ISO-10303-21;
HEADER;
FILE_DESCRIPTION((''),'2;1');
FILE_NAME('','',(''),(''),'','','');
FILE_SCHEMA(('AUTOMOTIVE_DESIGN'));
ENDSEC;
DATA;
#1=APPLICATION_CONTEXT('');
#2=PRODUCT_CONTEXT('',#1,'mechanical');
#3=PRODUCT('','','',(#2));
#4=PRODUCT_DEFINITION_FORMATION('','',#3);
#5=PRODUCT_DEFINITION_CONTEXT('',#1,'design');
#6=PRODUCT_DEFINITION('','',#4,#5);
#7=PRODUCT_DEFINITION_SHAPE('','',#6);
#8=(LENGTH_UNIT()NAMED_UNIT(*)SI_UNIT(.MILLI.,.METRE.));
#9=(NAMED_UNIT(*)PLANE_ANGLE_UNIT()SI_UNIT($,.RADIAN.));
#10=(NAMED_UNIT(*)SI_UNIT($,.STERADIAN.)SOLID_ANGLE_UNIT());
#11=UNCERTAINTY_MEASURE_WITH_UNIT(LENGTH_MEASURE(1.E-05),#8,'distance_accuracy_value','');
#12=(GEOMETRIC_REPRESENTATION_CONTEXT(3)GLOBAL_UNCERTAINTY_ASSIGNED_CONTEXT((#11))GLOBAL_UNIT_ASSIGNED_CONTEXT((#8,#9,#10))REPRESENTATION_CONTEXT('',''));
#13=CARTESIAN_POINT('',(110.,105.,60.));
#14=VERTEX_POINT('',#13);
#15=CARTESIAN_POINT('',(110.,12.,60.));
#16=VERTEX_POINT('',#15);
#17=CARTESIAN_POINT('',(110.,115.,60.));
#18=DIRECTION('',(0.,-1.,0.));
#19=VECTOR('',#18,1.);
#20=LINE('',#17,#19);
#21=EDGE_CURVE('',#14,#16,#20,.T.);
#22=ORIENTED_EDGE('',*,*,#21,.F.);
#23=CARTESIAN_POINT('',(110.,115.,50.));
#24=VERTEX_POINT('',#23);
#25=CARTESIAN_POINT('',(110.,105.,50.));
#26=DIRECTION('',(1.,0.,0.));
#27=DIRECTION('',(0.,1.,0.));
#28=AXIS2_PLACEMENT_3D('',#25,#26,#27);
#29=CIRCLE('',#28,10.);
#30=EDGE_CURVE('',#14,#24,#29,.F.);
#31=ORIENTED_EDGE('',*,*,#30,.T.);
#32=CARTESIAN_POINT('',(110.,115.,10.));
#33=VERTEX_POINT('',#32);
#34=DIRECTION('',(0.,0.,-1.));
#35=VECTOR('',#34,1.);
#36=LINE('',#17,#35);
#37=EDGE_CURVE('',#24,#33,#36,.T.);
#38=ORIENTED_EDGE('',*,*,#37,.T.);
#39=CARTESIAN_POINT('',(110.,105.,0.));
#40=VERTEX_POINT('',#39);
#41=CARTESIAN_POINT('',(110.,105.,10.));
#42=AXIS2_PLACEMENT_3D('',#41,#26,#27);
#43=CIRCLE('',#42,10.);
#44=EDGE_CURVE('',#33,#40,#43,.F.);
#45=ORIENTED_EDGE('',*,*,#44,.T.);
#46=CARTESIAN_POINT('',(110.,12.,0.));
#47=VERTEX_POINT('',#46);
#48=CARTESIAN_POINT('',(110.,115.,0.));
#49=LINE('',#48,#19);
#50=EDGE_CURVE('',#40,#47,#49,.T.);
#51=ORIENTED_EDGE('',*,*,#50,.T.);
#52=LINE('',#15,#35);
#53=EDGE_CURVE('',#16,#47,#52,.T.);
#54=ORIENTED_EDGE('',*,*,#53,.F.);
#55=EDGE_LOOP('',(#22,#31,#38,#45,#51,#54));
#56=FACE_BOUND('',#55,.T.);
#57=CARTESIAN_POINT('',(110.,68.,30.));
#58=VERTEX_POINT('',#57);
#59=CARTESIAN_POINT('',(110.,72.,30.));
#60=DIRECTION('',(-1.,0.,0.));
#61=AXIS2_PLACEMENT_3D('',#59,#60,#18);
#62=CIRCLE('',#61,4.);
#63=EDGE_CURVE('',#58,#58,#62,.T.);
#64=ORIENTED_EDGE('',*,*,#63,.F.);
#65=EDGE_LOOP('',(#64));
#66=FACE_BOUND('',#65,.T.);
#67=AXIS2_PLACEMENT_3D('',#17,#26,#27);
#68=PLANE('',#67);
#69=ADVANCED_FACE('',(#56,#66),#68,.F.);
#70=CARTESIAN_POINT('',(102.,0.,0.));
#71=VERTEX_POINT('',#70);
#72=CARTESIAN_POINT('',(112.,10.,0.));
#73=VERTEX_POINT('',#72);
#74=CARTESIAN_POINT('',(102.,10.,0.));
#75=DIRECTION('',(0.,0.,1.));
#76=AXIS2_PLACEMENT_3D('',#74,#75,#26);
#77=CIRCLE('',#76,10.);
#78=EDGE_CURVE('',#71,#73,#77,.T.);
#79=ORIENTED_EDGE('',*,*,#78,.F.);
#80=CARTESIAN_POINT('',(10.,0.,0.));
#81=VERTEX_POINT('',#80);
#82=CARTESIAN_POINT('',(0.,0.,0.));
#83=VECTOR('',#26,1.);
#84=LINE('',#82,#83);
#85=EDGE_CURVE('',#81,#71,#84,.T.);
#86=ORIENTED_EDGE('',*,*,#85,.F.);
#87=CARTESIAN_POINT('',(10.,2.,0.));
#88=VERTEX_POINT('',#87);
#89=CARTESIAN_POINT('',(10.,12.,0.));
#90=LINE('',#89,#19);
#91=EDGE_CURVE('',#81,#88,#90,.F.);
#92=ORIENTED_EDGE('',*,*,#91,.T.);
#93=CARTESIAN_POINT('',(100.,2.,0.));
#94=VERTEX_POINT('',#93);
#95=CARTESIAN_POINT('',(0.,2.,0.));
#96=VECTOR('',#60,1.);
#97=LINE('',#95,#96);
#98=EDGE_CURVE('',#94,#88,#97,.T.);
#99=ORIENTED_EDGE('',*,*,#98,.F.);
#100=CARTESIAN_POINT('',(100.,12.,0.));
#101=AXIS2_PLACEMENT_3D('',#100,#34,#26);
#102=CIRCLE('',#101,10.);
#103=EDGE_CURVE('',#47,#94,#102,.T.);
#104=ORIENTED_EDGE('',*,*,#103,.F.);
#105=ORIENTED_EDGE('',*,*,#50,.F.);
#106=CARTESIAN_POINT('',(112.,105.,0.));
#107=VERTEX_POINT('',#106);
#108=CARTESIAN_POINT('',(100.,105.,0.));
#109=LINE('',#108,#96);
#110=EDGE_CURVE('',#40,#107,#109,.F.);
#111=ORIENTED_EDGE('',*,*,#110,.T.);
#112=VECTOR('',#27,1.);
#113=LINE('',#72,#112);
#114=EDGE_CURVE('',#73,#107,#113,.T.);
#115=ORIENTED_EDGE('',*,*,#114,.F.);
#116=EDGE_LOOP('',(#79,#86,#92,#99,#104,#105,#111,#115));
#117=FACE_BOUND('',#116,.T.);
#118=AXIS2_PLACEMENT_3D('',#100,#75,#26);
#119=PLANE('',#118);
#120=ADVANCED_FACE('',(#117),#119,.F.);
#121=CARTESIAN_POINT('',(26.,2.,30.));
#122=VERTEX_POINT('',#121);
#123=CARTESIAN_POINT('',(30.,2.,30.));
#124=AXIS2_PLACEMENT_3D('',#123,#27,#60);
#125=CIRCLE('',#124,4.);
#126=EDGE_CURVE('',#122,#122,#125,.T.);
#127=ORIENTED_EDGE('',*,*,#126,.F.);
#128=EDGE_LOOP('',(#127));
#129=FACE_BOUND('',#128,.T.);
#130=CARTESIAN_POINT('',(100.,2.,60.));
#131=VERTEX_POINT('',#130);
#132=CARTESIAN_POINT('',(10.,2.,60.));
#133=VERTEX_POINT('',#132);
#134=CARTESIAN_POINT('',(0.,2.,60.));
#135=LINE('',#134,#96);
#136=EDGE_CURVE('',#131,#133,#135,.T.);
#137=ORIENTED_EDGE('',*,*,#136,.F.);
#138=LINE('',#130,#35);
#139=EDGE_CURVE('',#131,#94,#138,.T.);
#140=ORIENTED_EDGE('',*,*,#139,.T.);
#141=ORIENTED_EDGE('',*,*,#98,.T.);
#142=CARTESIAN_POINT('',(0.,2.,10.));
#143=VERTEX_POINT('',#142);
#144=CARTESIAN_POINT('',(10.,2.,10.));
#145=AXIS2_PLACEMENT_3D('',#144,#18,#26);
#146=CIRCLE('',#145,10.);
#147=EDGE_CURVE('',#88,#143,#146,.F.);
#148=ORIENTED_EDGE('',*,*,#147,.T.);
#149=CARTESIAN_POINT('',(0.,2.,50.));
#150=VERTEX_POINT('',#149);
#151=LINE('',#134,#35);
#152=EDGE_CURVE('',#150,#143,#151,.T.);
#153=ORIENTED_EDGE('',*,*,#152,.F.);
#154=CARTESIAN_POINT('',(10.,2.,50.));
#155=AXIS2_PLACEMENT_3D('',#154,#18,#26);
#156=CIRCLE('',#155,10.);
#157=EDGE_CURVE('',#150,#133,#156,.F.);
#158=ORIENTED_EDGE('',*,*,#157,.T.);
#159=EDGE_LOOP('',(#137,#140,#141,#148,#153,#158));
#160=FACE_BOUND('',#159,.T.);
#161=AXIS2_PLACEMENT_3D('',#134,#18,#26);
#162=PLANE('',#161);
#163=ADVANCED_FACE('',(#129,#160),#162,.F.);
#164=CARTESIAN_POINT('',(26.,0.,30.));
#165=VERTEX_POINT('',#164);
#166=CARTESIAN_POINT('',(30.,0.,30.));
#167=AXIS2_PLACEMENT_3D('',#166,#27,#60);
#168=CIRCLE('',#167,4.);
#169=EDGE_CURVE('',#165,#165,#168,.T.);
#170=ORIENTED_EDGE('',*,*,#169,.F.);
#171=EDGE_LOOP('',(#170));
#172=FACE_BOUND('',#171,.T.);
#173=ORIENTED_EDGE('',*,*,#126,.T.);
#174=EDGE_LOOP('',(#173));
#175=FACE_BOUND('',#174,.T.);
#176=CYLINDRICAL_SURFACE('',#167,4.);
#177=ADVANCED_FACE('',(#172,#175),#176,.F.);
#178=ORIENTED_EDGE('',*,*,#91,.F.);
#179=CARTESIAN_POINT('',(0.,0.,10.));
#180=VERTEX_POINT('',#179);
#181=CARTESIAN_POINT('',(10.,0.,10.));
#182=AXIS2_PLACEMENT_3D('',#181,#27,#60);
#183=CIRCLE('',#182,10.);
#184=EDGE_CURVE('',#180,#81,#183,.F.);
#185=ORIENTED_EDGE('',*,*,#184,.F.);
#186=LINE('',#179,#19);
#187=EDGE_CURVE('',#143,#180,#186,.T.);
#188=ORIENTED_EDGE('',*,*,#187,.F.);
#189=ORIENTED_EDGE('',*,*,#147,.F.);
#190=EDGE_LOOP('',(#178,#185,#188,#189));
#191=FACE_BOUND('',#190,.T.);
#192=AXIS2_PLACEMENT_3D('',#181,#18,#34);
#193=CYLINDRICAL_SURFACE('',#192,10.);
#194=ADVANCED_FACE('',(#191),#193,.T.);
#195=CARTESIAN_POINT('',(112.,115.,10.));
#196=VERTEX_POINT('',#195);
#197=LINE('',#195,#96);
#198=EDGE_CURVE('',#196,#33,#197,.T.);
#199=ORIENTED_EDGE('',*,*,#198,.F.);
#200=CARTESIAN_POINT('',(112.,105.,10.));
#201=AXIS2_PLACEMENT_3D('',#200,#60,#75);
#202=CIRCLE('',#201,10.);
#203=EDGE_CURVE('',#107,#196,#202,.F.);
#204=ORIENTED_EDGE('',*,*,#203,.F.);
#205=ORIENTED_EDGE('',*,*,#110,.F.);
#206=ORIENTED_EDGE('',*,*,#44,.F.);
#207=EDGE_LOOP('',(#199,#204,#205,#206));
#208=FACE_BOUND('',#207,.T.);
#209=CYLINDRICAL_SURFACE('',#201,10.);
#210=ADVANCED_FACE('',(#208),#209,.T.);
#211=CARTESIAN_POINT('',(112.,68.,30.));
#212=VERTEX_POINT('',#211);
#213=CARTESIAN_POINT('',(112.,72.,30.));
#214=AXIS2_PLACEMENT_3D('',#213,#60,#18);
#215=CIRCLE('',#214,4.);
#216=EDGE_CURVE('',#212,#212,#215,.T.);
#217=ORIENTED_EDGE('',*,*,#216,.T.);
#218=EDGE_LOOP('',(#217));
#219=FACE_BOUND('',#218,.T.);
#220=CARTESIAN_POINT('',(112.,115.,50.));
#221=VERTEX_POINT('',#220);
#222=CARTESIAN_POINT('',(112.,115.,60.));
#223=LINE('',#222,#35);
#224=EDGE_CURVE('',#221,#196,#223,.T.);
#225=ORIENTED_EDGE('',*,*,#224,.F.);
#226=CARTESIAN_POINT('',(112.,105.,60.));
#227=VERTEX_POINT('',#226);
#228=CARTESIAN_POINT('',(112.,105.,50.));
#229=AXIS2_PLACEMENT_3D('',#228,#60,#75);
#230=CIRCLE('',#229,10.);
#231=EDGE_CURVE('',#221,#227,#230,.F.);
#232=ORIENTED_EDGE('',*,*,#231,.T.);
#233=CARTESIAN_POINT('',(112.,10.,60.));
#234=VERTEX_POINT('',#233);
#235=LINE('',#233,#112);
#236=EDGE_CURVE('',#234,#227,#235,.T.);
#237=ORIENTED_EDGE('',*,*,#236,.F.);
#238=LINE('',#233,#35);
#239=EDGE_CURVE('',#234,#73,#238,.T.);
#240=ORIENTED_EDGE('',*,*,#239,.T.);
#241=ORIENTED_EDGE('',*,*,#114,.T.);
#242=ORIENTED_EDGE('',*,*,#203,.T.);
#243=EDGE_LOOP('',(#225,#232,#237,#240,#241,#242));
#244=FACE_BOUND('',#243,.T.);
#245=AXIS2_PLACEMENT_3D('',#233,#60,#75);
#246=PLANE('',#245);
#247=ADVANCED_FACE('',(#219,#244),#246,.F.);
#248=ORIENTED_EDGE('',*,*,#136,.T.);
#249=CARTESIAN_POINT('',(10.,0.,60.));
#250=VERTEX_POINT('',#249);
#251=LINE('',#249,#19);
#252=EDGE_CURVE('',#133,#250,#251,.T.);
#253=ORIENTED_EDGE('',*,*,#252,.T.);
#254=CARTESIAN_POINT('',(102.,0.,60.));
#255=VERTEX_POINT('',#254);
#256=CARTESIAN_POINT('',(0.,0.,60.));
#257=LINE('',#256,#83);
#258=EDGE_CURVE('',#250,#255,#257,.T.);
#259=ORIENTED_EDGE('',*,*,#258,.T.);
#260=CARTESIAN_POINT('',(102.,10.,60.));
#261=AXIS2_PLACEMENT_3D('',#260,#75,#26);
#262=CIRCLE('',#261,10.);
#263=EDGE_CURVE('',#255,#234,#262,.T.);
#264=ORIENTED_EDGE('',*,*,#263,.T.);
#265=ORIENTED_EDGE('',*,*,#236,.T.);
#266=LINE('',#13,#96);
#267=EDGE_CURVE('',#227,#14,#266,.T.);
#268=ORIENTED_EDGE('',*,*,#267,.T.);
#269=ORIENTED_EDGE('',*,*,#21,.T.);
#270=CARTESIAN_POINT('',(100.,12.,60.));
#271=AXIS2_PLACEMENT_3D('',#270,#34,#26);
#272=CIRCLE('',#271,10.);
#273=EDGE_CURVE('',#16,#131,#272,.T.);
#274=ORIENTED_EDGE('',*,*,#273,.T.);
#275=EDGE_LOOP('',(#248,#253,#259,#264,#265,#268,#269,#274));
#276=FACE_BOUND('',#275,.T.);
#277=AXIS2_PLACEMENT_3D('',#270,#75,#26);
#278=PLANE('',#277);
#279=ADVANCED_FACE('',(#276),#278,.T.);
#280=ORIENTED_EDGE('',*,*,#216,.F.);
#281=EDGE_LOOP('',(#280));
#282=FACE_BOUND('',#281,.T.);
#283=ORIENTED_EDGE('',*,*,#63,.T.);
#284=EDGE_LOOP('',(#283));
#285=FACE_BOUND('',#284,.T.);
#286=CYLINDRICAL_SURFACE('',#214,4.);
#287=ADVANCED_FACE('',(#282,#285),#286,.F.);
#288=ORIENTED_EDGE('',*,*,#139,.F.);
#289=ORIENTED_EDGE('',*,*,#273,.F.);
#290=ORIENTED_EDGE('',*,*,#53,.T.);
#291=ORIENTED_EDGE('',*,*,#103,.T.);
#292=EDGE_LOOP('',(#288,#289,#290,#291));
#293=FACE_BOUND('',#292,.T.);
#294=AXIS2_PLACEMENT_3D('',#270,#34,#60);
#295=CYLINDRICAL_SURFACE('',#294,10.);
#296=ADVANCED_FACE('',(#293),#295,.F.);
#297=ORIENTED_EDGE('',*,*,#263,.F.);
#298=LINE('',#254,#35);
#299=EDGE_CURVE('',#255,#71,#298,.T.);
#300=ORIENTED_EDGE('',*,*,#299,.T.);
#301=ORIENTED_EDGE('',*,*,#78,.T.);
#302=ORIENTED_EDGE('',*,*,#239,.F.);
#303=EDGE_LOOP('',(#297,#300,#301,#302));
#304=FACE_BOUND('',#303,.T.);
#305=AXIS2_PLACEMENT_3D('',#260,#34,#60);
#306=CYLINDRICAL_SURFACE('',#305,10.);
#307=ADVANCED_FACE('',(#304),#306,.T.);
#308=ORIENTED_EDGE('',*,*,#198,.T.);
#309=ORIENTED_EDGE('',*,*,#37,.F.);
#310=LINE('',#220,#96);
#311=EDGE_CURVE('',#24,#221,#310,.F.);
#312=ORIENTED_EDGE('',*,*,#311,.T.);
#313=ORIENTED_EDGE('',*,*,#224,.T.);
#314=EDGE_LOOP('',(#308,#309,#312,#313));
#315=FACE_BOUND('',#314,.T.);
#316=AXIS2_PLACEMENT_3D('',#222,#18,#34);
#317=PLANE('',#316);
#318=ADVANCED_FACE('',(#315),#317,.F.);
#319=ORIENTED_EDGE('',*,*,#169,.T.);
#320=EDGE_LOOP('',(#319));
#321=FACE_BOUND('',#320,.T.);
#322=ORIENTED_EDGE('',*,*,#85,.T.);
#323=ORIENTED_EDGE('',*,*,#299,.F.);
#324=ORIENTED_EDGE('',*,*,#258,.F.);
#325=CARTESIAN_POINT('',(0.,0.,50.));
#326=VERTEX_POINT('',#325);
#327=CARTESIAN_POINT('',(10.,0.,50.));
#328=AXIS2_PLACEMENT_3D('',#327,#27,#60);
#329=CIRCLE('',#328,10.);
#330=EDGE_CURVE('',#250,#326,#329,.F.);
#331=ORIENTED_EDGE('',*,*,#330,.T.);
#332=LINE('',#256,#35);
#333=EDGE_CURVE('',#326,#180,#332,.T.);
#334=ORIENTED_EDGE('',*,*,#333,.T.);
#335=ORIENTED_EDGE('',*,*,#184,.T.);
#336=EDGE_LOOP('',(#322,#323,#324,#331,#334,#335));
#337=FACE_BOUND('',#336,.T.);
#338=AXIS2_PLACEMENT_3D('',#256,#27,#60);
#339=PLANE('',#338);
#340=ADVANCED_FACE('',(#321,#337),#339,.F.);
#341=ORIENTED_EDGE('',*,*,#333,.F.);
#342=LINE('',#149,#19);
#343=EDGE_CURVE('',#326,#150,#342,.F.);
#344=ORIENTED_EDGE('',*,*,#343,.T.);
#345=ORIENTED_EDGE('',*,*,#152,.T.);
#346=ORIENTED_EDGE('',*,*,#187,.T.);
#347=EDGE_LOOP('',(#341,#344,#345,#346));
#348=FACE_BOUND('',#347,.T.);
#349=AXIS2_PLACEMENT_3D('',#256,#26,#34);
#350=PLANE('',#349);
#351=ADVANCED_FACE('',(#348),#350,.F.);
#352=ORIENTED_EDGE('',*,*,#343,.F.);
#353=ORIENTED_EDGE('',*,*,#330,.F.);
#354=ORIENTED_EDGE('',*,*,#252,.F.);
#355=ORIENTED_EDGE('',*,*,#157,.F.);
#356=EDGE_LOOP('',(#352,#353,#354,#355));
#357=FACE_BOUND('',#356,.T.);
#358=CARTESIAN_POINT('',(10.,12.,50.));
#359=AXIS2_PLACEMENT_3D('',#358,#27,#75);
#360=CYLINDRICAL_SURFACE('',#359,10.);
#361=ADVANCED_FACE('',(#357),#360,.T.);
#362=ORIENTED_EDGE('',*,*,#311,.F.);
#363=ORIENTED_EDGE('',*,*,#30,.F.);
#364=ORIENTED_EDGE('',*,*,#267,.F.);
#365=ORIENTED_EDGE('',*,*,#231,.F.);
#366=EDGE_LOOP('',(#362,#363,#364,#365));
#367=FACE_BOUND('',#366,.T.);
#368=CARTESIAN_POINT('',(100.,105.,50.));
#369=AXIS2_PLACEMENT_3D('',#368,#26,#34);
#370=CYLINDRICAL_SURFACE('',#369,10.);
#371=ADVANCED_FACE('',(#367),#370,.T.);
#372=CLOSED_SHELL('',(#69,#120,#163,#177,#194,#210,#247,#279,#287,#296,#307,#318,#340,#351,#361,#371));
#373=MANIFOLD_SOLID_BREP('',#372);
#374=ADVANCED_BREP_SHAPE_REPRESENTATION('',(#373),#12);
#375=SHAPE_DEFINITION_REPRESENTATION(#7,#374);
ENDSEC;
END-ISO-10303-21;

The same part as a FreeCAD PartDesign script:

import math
import FreeCAD as App
import Part
import Sketcher
from FreeCAD import Vector
Q = App.Units.Quantity


def edges_at(feature, points):
    """Names of the edges that pass closest to the given points."""
    edges = feature.Shape.Edges
    near = lambda p: min(range(len(edges)), key=lambda i: edges[i].distToShape(Part.Vertex(*p))[0])
    return sorted({f"Edge{near(p) + 1}" for p in points})

doc = App.newDocument("Part")
body = doc.addObject("PartDesign::Body", "Body")

sketch1 = body.newObject("Sketcher::SketchObject", "Sketch")
sketch1.AttachmentSupport = (doc.getObject("XY_Plane"), [""])
sketch1.MapMode = "FlatFace"
sketch1.addGeometry(Part.LineSegment(Vector(0, 0, 0), Vector(102, 0, 0)), False)
sketch1.addGeometry(Part.ArcOfCircle(Part.Circle(Vector(102, 10, 0), Vector(0, 0, 1), 10), math.radians(-90), math.radians(0)), False)
sketch1.addGeometry(Part.LineSegment(Vector(112, 10, 0), Vector(112, 115, 0)), False)
sketch1.addGeometry(Part.LineSegment(Vector(112, 115, 0), Vector(110, 115, 0)), False)
sketch1.addGeometry(Part.LineSegment(Vector(110, 115, 0), Vector(110, 12, 0)), False)
sketch1.addGeometry(Part.ArcOfCircle(Part.Circle(Vector(100, 12, 0), Vector(0, 0, 1), 10), math.radians(-90), math.radians(0)), False)
sketch1.addGeometry(Part.LineSegment(Vector(100, 2, 0), Vector(0, 2, 0)), False)
sketch1.addGeometry(Part.LineSegment(Vector(0, 2, 0), Vector(0, 0, 0)), False)
sketch1.addConstraint(Sketcher.Constraint("Tangent", 0, 2, 1, 1))
sketch1.addConstraint(Sketcher.Constraint("Tangent", 1, 2, 2, 1))
sketch1.addConstraint(Sketcher.Constraint("Coincident", 2, 2, 3, 1))
sketch1.addConstraint(Sketcher.Constraint("Coincident", 3, 2, 4, 1))
sketch1.addConstraint(Sketcher.Constraint("Tangent", 4, 2, 5, 2))
sketch1.addConstraint(Sketcher.Constraint("Tangent", 5, 1, 6, 1))
sketch1.addConstraint(Sketcher.Constraint("Coincident", 6, 2, 7, 1))
sketch1.addConstraint(Sketcher.Constraint("Coincident", 7, 2, 0, 1))
sketch1.addConstraint(Sketcher.Constraint("Horizontal", 0))
sketch1.addConstraint(Sketcher.Constraint("Vertical", 2))
sketch1.addConstraint(Sketcher.Constraint("Horizontal", 3))
sketch1.addConstraint(Sketcher.Constraint("Vertical", 4))
sketch1.addConstraint(Sketcher.Constraint("Horizontal", 6))
sketch1.addConstraint(Sketcher.Constraint("Vertical", 7))
sketch1.addConstraint(Sketcher.Constraint("Coincident", 7, 2, -1, 1))
sketch1.addConstraint(Sketcher.Constraint("Equal", 1, 5))
sketch1.addConstraint(Sketcher.Constraint("Equal", 3, 7))
sketch1.addConstraint(Sketcher.Constraint("Radius", 1, Q("10 mm")))
sketch1.addConstraint(Sketcher.Constraint("DistanceX", 0, 1, 0, 2, Q("102 mm")))
sketch1.addConstraint(Sketcher.Constraint("DistanceX", 3, 2, 3, 1, Q("2 mm")))
sketch1.addConstraint(Sketcher.Constraint("DistanceY", 2, 1, 2, 2, Q("105 mm")))
pad1 = body.newObject("PartDesign::Pad", "Pad")
pad1.Profile = sketch1
pad1.Length = 60

sketch2 = body.newObject("Sketcher::SketchObject", "Sketch001")
sketch2.AttachmentSupport = (doc.getObject("XZ_Plane"), [""])
sketch2.MapMode = "FlatFace"
sketch2.AttachmentOffset = App.Placement(Vector(0, 0, -2), App.Rotation())
sketch2.addGeometry(Part.Circle(Vector(30, 30, 0), Vector(0, 0, 1), 4), False)
sketch2.addConstraint(Sketcher.Constraint("Diameter", 0, Q("8 mm")))
sketch2.addConstraint(Sketcher.Constraint("DistanceX", -1, 1, 0, 3, Q("30 mm")))
sketch2.addConstraint(Sketcher.Constraint("DistanceY", -1, 1, 0, 3, Q("30 mm")))
pocket1 = body.newObject("PartDesign::Pocket", "Pocket")
pocket1.Profile = sketch2
pocket1.Type = "ThroughAll"
pocket1.Reversed = True

sketch3 = body.newObject("Sketcher::SketchObject", "Sketch002")
sketch3.AttachmentSupport = (doc.getObject("YZ_Plane"), [""])
sketch3.MapMode = "FlatFace"
sketch3.AttachmentOffset = App.Placement(Vector(0, 0, 110), App.Rotation())
sketch3.addGeometry(Part.Circle(Vector(72, 30, 0), Vector(0, 0, 1), 4), False)
sketch3.addConstraint(Sketcher.Constraint("Diameter", 0, Q("8 mm")))
sketch3.addConstraint(Sketcher.Constraint("DistanceX", -1, 1, 0, 3, Q("72 mm")))
sketch3.addConstraint(Sketcher.Constraint("DistanceY", -1, 1, 0, 3, Q("30 mm")))
pocket2 = body.newObject("PartDesign::Pocket", "Pocket001")
pocket2.Profile = sketch3
pocket2.Type = "ThroughAll"
pocket2.Reversed = True
doc.recompute()

fillet = body.newObject("PartDesign::Fillet", "Fillet")
fillet.Base = (pocket2, edges_at(pocket2, [(111, 115, 60), (111, 115, 0)]))
fillet.Radius = 10
doc.recompute()

fillet2 = body.newObject("PartDesign::Fillet", "Fillet001")
fillet2.Base = (fillet, edges_at(fillet, [(0, 1, 0), (0, 1, 60)]))
fillet2.Radius = 10

doc.recompute()
